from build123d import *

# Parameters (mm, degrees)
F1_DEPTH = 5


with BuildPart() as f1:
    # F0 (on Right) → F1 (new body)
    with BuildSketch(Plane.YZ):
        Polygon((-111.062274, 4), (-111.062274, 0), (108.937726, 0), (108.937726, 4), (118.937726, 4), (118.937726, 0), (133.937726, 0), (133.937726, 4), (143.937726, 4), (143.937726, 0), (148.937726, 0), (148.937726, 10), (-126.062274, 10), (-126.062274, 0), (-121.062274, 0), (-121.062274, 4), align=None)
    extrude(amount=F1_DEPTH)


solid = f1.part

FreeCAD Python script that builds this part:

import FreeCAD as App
import Part
import Sketcher
from FreeCAD import Vector
Q = App.Units.Quantity


def add_polygon(sketch, points):
    """Adds a closed chain of lines whose ends are joined by coincident constraints."""
    first, n = sketch.GeometryCount, len(points)
    for a, b in zip(points, points[1:] + points[:1]):
        sketch.addGeometry(Part.LineSegment(App.Vector(*a, 0), App.Vector(*b, 0)), False)
    for i in range(n):
        sketch.addConstraint(Sketcher.Constraint("Coincident", first + i, 2, first + (i + 1) % n, 1))

doc = App.newDocument("Part")
body = doc.addObject("PartDesign::Body", "Body")

sketch1 = body.newObject("Sketcher::SketchObject", "Sketch")
sketch1.AttachmentSupport = (doc.getObject("YZ_Plane"), [""])
sketch1.MapMode = "FlatFace"
add_polygon(sketch1, [(-111.062274, 4), (-111.062274, 0), (108.937726, 0), (108.937726, 4), (118.937726, 4), (118.937726, 0), (133.937726, 0), (133.937726, 4), (143.937726, 4), (143.937726, 0), (148.937726, 0), (148.937726, 10), (-126.062274, 10), (-126.062274, 0), (-121.062274, 0), (-121.062274, 4)])
sketch1.addConstraint(Sketcher.Constraint("Vertical", 0))
sketch1.addConstraint(Sketcher.Constraint("Horizontal", 1))
sketch1.addConstraint(Sketcher.Constraint("Vertical", 2))
sketch1.addConstraint(Sketcher.Constraint("Horizontal", 3))
sketch1.addConstraint(Sketcher.Constraint("Vertical", 4))
sketch1.addConstraint(Sketcher.Constraint("Horizontal", 5))
sketch1.addConstraint(Sketcher.Constraint("Vertical", 6))
sketch1.addConstraint(Sketcher.Constraint("Horizontal", 7))
sketch1.addConstraint(Sketcher.Constraint("Vertical", 8))
sketch1.addConstraint(Sketcher.Constraint("Horizontal", 9))
sketch1.addConstraint(Sketcher.Constraint("Vertical", 10))
sketch1.addConstraint(Sketcher.Constraint("Horizontal", 11))
sketch1.addConstraint(Sketcher.Constraint("Vertical", 12))
sketch1.addConstraint(Sketcher.Constraint("Horizontal", 13))
sketch1.addConstraint(Sketcher.Constraint("Vertical", 14))
sketch1.addConstraint(Sketcher.Constraint("Horizontal", 15))
sketch1.addConstraint(Sketcher.Constraint("PointOnObject", 0, 2, -1))
sketch1.addConstraint(Sketcher.Constraint("PointOnObject", 4, 2, -1))
sketch1.addConstraint(Sketcher.Constraint("PointOnObject", 8, 2, -1))
sketch1.addConstraint(Sketcher.Constraint("PointOnObject", 12, 2, -1))
sketch1.addConstraint(Sketcher.Constraint("Horizontal", 3, 2, 6, 2))
sketch1.addConstraint(Sketcher.Constraint("Horizontal", 7, 2, 14, 2))
sketch1.addConstraint(Sketcher.Constraint("Equal", 3, 7))
sketch1.addConstraint(Sketcher.Constraint("Equal", 9, 13))
sketch1.addConstraint(Sketcher.Constraint("Equal", 7, 15))
sketch1.addConstraint(Sketcher.Constraint("Equal", 15, 10))
sketch1.addConstraint(Sketcher.Constraint("DistanceX", 1, 1, 1, 2, Q("220 mm")))
sketch1.addConstraint(Sketcher.Constraint("DistanceX", 3, 1, 3, 2, Q("10 mm")))
sketch1.addConstraint(Sketcher.Constraint("DistanceX", 5, 1, 5, 2, Q("15 mm")))
sketch1.addConstraint(Sketcher.Constraint("DistanceX", 9, 1, 9, 2, Q("5 mm")))
sketch1.addConstraint(Sketcher.Constraint("DistanceY", 0, 2, 0, 1, Q("4 mm")))
sketch1.addConstraint(Sketcher.Constraint("DistanceX", 0, 2, -1, 1, Q("111.062274 mm")))
pad1 = body.newObject("PartDesign::Pad", "Pad")
pad1.Profile = sketch1
pad1.Length = 5

doc.recompute()
